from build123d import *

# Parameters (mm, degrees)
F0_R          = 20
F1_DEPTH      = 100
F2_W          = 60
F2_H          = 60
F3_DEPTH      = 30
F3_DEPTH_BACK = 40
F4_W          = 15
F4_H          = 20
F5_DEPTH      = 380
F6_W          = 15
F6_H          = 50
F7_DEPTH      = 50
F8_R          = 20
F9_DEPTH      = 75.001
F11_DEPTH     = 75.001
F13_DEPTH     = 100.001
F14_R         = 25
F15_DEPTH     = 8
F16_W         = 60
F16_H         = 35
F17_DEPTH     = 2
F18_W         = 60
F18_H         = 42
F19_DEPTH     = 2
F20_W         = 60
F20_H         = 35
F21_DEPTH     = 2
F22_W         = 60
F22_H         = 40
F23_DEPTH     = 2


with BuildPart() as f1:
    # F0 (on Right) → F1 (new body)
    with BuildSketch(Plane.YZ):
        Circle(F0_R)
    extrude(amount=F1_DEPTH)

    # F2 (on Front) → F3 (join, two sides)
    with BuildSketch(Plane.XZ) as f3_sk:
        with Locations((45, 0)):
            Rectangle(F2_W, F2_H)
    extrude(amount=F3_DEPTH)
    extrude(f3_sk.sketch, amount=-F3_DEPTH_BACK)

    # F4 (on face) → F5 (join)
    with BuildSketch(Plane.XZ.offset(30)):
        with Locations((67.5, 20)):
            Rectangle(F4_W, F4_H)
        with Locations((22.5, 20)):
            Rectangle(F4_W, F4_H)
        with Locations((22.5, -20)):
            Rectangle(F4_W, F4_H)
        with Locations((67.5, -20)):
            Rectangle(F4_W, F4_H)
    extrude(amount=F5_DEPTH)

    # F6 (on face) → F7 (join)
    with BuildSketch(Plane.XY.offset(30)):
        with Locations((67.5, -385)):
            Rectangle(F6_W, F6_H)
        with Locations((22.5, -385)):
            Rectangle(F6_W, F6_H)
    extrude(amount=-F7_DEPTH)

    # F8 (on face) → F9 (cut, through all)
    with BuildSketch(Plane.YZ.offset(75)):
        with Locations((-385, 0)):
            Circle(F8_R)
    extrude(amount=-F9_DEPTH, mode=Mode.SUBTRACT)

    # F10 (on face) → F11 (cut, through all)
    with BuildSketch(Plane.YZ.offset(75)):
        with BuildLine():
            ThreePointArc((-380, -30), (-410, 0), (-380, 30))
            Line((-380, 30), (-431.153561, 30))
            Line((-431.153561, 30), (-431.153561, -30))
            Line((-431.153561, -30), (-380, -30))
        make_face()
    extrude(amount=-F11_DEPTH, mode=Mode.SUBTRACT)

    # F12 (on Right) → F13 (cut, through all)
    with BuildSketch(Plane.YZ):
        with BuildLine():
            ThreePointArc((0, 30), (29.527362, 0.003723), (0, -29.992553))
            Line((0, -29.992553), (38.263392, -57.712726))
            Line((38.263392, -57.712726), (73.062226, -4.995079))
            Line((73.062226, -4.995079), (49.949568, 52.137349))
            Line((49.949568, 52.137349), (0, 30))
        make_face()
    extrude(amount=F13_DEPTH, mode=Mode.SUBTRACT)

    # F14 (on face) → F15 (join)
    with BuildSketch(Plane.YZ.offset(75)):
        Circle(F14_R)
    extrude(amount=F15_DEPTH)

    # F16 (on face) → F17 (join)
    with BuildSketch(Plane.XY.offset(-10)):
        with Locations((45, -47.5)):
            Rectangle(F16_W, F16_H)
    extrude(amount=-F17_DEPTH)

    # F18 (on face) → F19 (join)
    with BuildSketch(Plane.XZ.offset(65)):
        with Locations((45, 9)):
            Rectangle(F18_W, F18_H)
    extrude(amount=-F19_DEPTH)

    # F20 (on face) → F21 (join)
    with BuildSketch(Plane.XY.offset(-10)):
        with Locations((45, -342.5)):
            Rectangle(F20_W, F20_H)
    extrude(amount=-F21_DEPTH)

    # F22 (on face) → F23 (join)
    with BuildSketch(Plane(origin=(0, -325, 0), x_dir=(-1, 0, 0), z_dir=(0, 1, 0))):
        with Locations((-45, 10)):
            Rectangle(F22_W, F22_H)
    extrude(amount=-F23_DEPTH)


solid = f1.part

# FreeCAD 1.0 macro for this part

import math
import FreeCAD as App
import Part
import Sketcher
Q = App.Units.Quantity

doc = App.newDocument("Part")
body = doc.addObject("PartDesign::Body", "Body")

sketch1 = doc.addObject("Sketcher::SketchObject", "Sketch")
body.addObject(sketch1)
sketch1.AttachmentSupport = (doc.YZ_Plane, [""])
sketch1.MapMode = "FlatFace"
sketch1.addGeometry(Part.Circle(App.Vector(0, 0, 0), App.Vector(0, 0, 1), 20), False)
sketch1.addConstraint([
    Sketcher.Constraint("Coincident", 0, 3, -1, 1),
    Sketcher.Constraint("Diameter", 0, Q("40 mm")),
])
pad1 = doc.addObject("PartDesign::Pad", "Pad")
body.addObject(pad1)
pad1.Profile = sketch1
pad1.Length = 100

sketch2 = doc.addObject("Sketcher::SketchObject", "Sketch001")
body.addObject(sketch2)
sketch2.AttachmentSupport = (doc.XZ_Plane, [""])
sketch2.MapMode = "FlatFace"
sketch2.addGeometry([
    Part.LineSegment(App.Vector(15, 30, 0), App.Vector(15, -30, 0)),
    Part.LineSegment(App.Vector(15, -30, 0), App.Vector(75, -30, 0)),
    Part.LineSegment(App.Vector(75, -30, 0), App.Vector(75, 30, 0)),
    Part.LineSegment(App.Vector(75, 30, 0), App.Vector(15, 30, 0)),
], False)
sketch2.addConstraint([
    Sketcher.Constraint("Coincident", 0, 2, 1, 1),
    Sketcher.Constraint("Coincident", 1, 2, 2, 1),
    Sketcher.Constraint("Coincident", 2, 2, 3, 1),
    Sketcher.Constraint("Coincident", 3, 2, 0, 1),
    Sketcher.Constraint("Vertical", 0),
    Sketcher.Constraint("Horizontal", 1),
    Sketcher.Constraint("Vertical", 2),
    Sketcher.Constraint("Horizontal", 3),
    Sketcher.Constraint("Equal", 3, 0),
    Sketcher.Constraint("DistanceX", 1, 1, 1, 2, Q("60 mm")),
    Sketcher.Constraint("DistanceX", -1, 1, 0, 2, Q("15 mm")),
    Sketcher.Constraint("DistanceY", 0, 2, -1, 1, Q("30 mm")),
])
pad2 = doc.addObject("PartDesign::Pad", "Pad001")
body.addObject(pad2)
pad2.Profile = sketch2
pad2.Type = "TwoLengths"
pad2.Length = 30
pad2.Length2 = 40

sketch3 = doc.addObject("Sketcher::SketchObject", "Sketch002")
body.addObject(sketch3)
sketch3.AttachmentSupport = (doc.XZ_Plane, [""])
sketch3.MapMode = "FlatFace"
sketch3.AttachmentOffset = App.Placement(App.Vector(0, 0, 30), App.Rotation())
sketch3.addGeometry([
    Part.LineSegment(App.Vector(60, 30, 0), App.Vector(60, 10, 0)),
    Part.LineSegment(App.Vector(60, 10, 0), App.Vector(75, 10, 0)),
    Part.LineSegment(App.Vector(75, 10, 0), App.Vector(75, 30, 0)),
    Part.LineSegment(App.Vector(75, 30, 0), App.Vector(60, 30, 0)),
    Part.LineSegment(App.Vector(15, 30, 0), App.Vector(15, 10, 0)),
    Part.LineSegment(App.Vector(15, 10, 0), App.Vector(30, 10, 0)),
    Part.LineSegment(App.Vector(30, 10, 0), App.Vector(30, 30, 0)),
    Part.LineSegment(App.Vector(30, 30, 0), App.Vector(15, 30, 0)),
    Part.LineSegment(App.Vector(15, -10, 0), App.Vector(15, -30, 0)),
    Part.LineSegment(App.Vector(15, -30, 0), App.Vector(30, -30, 0)),
    Part.LineSegment(App.Vector(30, -30, 0), App.Vector(30, -10, 0)),
    Part.LineSegment(App.Vector(30, -10, 0), App.Vector(15, -10, 0)),
    Part.LineSegment(App.Vector(60, -10, 0), App.Vector(60, -30, 0)),
    Part.LineSegment(App.Vector(60, -30, 0), App.Vector(75, -30, 0)),
    Part.LineSegment(App.Vector(75, -30, 0), App.Vector(75, -10, 0)),
    Part.LineSegment(App.Vector(75, -10, 0), App.Vector(60, -10, 0)),
], False)
sketch3.addConstraint([
    Sketcher.Constraint("Coincident", 0, 2, 1, 1),
    Sketcher.Constraint("Coincident", 1, 2, 2, 1),
    Sketcher.Constraint("Coincident", 2, 2, 3, 1),
    Sketcher.Constraint("Coincident", 3, 2, 0, 1),
    Sketcher.Constraint("Coincident", 4, 2, 5, 1),
    Sketcher.Constraint("Coincident", 5, 2, 6, 1),
    Sketcher.Constraint("Coincident", 6, 2, 7, 1),
    Sketcher.Constraint("Coincident", 7, 2, 4, 1),
    Sketcher.Constraint("Coincident", 8, 2, 9, 1),
    Sketcher.Constraint("Coincident", 9, 2, 10, 1),
    Sketcher.Constraint("Coincident", 10, 2, 11, 1),
    Sketcher.Constraint("Coincident", 11, 2, 8, 1),
    Sketcher.Constraint("Coincident", 12, 2, 13, 1),
    Sketcher.Constraint("Coincident", 13, 2, 14, 1),
    Sketcher.Constraint("Coincident", 14, 2, 15, 1),
    Sketcher.Constraint("Coincident", 15, 2, 12, 1),
    Sketcher.Constraint("Vertical", 0),
    Sketcher.Constraint("Horizontal", 1),
    Sketcher.Constraint("Vertical", 2),
    Sketcher.Constraint("Horizontal", 3),
    Sketcher.Constraint("Vertical", 4),
    Sketcher.Constraint("Horizontal", 5),
    Sketcher.Constraint("Vertical", 6),
    Sketcher.Constraint("Horizontal", 7),
    Sketcher.Constraint("Vertical", 8),
    Sketcher.Constraint("Horizontal", 9),
    Sketcher.Constraint("Vertical", 10),
    Sketcher.Constraint("Horizontal", 11),
    Sketcher.Constraint("Vertical", 12),
    Sketcher.Constraint("Horizontal", 13),
    Sketcher.Constraint("Vertical", 14),
    Sketcher.Constraint("Horizontal", 15),
    Sketcher.Constraint("Symmetric", 7, 2, 8, 2, -1),
    Sketcher.Constraint("Symmetric", 5, 2, 10, 2, -1),
    Sketcher.Constraint("Symmetric", 3, 2, 12, 2, -1),
    Sketcher.Constraint("Symmetric", 1, 2, 14, 2, -1),
    Sketcher.Constraint("Horizontal", 1, 2, 4, 2),
    Sketcher.Constraint("Horizontal", 3, 2, 6, 2),
    Sketcher.Constraint("Equal", 3, 5),
    Sketcher.Constraint("DistanceX", 1, 1, 1, 2, Q("15 mm")),
    Sketcher.Constraint("DistanceY", 0, 2, 0, 1, Q("20 mm")),
    Sketcher.Constraint("DistanceX", -1, 1, 0, 2, Q("60 mm")),
    Sketcher.Constraint("DistanceY", -1, 1, 0, 2, Q("10 mm")),
    Sketcher.Constraint("DistanceX", -1, 1, 4, 2, Q("15 mm")),
])
pad3 = doc.addObject("PartDesign::Pad", "Pad002")
body.addObject(pad3)
pad3.Profile = sketch3
pad3.Length = 380

sketch4 = doc.addObject("Sketcher::SketchObject", "Sketch003")
body.addObject(sketch4)
sketch4.AttachmentSupport = (doc.XY_Plane, [""])
sketch4.MapMode = "FlatFace"
sketch4.AttachmentOffset = App.Placement(App.Vector(0, 0, 30), App.Rotation())
sketch4.addGeometry([
    Part.LineSegment(App.Vector(60, -360, 0), App.Vector(60, -410, 0)),
    Part.LineSegment(App.Vector(60, -410, 0), App.Vector(75, -410, 0)),
    Part.LineSegment(App.Vector(75, -410, 0), App.Vector(75, -360, 0)),
    Part.LineSegment(App.Vector(75, -360, 0), App.Vector(60, -360, 0)),
    Part.LineSegment(App.Vector(15, -360, 0), App.Vector(15, -410, 0)),
    Part.LineSegment(App.Vector(15, -410, 0), App.Vector(30, -410, 0)),
    Part.LineSegment(App.Vector(30, -410, 0), App.Vector(30, -360, 0)),
    Part.LineSegment(App.Vector(30, -360, 0), App.Vector(15, -360, 0)),
], False)
sketch4.addConstraint([
    Sketcher.Constraint("Coincident", 0, 2, 1, 1),
    Sketcher.Constraint("Coincident", 1, 2, 2, 1),
    Sketcher.Constraint("Coincident", 2, 2, 3, 1),
    Sketcher.Constraint("Coincident", 3, 2, 0, 1),
    Sketcher.Constraint("Coincident", 4, 2, 5, 1),
    Sketcher.Constraint("Coincident", 5, 2, 6, 1),
    Sketcher.Constraint("Coincident", 6, 2, 7, 1),
    Sketcher.Constraint("Coincident", 7, 2, 4, 1),
    Sketcher.Constraint("Vertical", 0),
    Sketcher.Constraint("Horizontal", 1),
    Sketcher.Constraint("Vertical", 2),
    Sketcher.Constraint("Horizontal", 3),
    Sketcher.Constraint("Vertical", 4),
    Sketcher.Constraint("Horizontal", 5),
    Sketcher.Constraint("Vertical", 6),
    Sketcher.Constraint("Horizontal", 7),
    Sketcher.Constraint("Horizontal", 1, 2, 4, 2),
    Sketcher.Constraint("Horizontal", 3, 2, 6, 2),
    Sketcher.Constraint("Equal", 3, 5),
    Sketcher.Constraint("DistanceX", 1, 1, 1, 2, Q("15 mm")),
    Sketcher.Constraint("DistanceY", 0, 2, 0, 1, Q("50 mm")),
    Sketcher.Constraint("DistanceX", -1, 1, 0, 2, Q("60 mm")),
    Sketcher.Constraint("DistanceY", 0, 2, -1, 1, Q("410 mm")),
    Sketcher.Constraint("DistanceX", -1, 1, 4, 2, Q("15 mm")),
])
pad4 = doc.addObject("PartDesign::Pad", "Pad003")
body.addObject(pad4)
pad4.Profile = sketch4
pad4.Length = 50
pad4.Reversed = True

sketch5 = doc.addObject("Sketcher::SketchObject", "Sketch004")
body.addObject(sketch5)
sketch5.AttachmentSupport = (doc.YZ_Plane, [""])
sketch5.MapMode = "FlatFace"
sketch5.AttachmentOffset = App.Placement(App.Vector(0, 0, 75), App.Rotation())
sketch5.addGeometry(Part.Circle(App.Vector(-385, 0, 0), App.Vector(0, 0, 1), 20), False)
sketch5.addConstraint([
    Sketcher.Constraint("PointOnObject", 0, 3, -1),
    Sketcher.Constraint("Diameter", 0, Q("40 mm")),
    Sketcher.Constraint("DistanceX", 0, 3, -1, 1, Q("385 mm")),
])
pocket1 = doc.addObject("PartDesign::Pocket", "Pocket")
body.addObject(pocket1)
pocket1.Profile = sketch5
pocket1.Type = "ThroughAll"

sketch6 = doc.addObject("Sketcher::SketchObject", "Sketch005")
body.addObject(sketch6)
sketch6.AttachmentSupport = (doc.YZ_Plane, [""])
sketch6.MapMode = "FlatFace"
sketch6.AttachmentOffset = App.Placement(App.Vector(0, 0, 75), App.Rotation())
sketch6.addGeometry([
    Part.ArcOfCircle(Part.Circle(App.Vector(-380, 0, 0), App.Vector(0, 0, 1), 30), math.radians(90), math.radians(270)),
    Part.LineSegment(App.Vector(-380, 30, 0), App.Vector(-431.153561, 30, 0)),
    Part.LineSegment(App.Vector(-431.153561, 30, 0), App.Vector(-431.153561, -30, 0)),
    Part.LineSegment(App.Vector(-431.153561, -30, 0), App.Vector(-380, -30, 0)),
], False)
sketch6.addConstraint([
    Sketcher.Constraint("Tangent", 0, 1, 1, 1),
    Sketcher.Constraint("Coincident", 1, 2, 2, 1),
    Sketcher.Constraint("Coincident", 2, 2, 3, 1),
    Sketcher.Constraint("Tangent", 3, 2, 0, 2),
    Sketcher.Constraint("Horizontal", 1),
    Sketcher.Constraint("Vertical", 2),
    Sketcher.Constraint("Horizontal", 3),
    Sketcher.Constraint("PointOnObject", 0, 3, -1),
    Sketcher.Constraint("Radius", 0, Q("30 mm")),
    Sketcher.Constraint("DistanceX", 0, 3, -1, 1, Q("380 mm")),
    Sketcher.Constraint("DistanceX", 1, 2, 1, 1, Q("51.153561 mm")),
])
pocket2 = doc.addObject("PartDesign::Pocket", "Pocket001")
body.addObject(pocket2)
pocket2.Profile = sketch6
pocket2.Type = "ThroughAll"

sketch7 = doc.addObject("Sketcher::SketchObject", "Sketch006")
body.addObject(sketch7)
sketch7.AttachmentSupport = (doc.YZ_Plane, [""])
sketch7.MapMode = "FlatFace"
sketch7.addGeometry([
    Part.ArcOfCircle(Part.Circle(App.Vector(-0.472638, 0.003723, 0), App.Vector(0, 0, 1), 30), math.radians(-89.097291), math.radians(89.097291)),
    Part.LineSegment(App.Vector(0, -29.992553, 0), App.Vector(38.263392, -57.712726, 0)),
    Part.LineSegment(App.Vector(38.263392, -57.712726, 0), App.Vector(73.062226, -4.995079, 0)),
    Part.LineSegment(App.Vector(73.062226, -4.995079, 0), App.Vector(49.949568, 52.137349, 0)),
    Part.LineSegment(App.Vector(49.949568, 52.137349, 0), App.Vector(0, 30, 0)),
], False)
sketch7.addConstraint([
    Sketcher.Constraint("Coincident", 0, 1, 1, 1),
    Sketcher.Constraint("Coincident", 1, 2, 2, 1),
    Sketcher.Constraint("Coincident", 2, 2, 3, 1),
    Sketcher.Constraint("Coincident", 3, 2, 4, 1),
    Sketcher.Constraint("Coincident", 4, 2, 0, 2),
    Sketcher.Constraint("PointOnObject", 0, 1, -2),
    Sketcher.Constraint("PointOnObject", 4, 2, -2),
    Sketcher.Constraint("Radius", 0, Q("30 mm")),
    Sketcher.Constraint("DistanceY", -1, 1, 4, 2, Q("30 mm")),
    Sketcher.Constraint("Distance", 2, Q("63.167311 mm")),
    Sketcher.Constraint("Distance", 4, Q("54.635351 mm")),
    Sketcher.Constraint("DistanceY", 2, 2, -1, 1, Q("4.995079 mm")),
    Sketcher.Constraint("DistanceY", -1, 1, 3, 2, Q("52.137349 mm")),
    Sketcher.Constraint("DistanceX", 0, 1, 1, 2, Q("38.263392 mm")),
    Sketcher.Constraint("DistanceX", 0, 3, 1, 2, Q("38.73603 mm")),
    Sketcher.Constraint("DistanceY", 1, 2, 0, 3, Q("57.71645 mm")),
])
pocket3 = doc.addObject("PartDesign::Pocket", "Pocket002")
body.addObject(pocket3)
pocket3.Profile = sketch7
pocket3.Type = "ThroughAll"
pocket3.Reversed = True

sketch8 = doc.addObject("Sketcher::SketchObject", "Sketch007")
body.addObject(sketch8)
sketch8.AttachmentSupport = (doc.YZ_Plane, [""])
sketch8.MapMode = "FlatFace"
sketch8.AttachmentOffset = App.Placement(App.Vector(0, 0, 75), App.Rotation())
sketch8.addGeometry(Part.Circle(App.Vector(0, 0, 0), App.Vector(0, 0, 1), 25), False)
sketch8.addConstraint([
    Sketcher.Constraint("Coincident", 0, 3, -1, 1),
    Sketcher.Constraint("Diameter", 0, Q("50 mm")),
])
pad5 = doc.addObject("PartDesign::Pad", "Pad004")
body.addObject(pad5)
pad5.Profile = sketch8
pad5.Length = 8

sketch9 = doc.addObject("Sketcher::SketchObject", "Sketch008")
body.addObject(sketch9)
sketch9.AttachmentSupport = (doc.XY_Plane, [""])
sketch9.MapMode = "FlatFace"
sketch9.AttachmentOffset = App.Placement(App.Vector(0, 0, -10), App.Rotation())
sketch9.addGeometry([
    Part.LineSegment(App.Vector(15, -30, 0), App.Vector(15, -65, 0)),
    Part.LineSegment(App.Vector(15, -65, 0), App.Vector(75, -65, 0)),
    Part.LineSegment(App.Vector(75, -65, 0), App.Vector(75, -30, 0)),
    Part.LineSegment(App.Vector(75, -30, 0), App.Vector(15, -30, 0)),
], False)
sketch9.addConstraint([
    Sketcher.Constraint("Coincident", 0, 2, 1, 1),
    Sketcher.Constraint("Coincident", 1, 2, 2, 1),
    Sketcher.Constraint("Coincident", 2, 2, 3, 1),
    Sketcher.Constraint("Coincident", 3, 2, 0, 1),
    Sketcher.Constraint("Vertical", 0),
    Sketcher.Constraint("Horizontal", 1),
    Sketcher.Constraint("Vertical", 2),
    Sketcher.Constraint("Horizontal", 3),
    Sketcher.Constraint("DistanceX", 1, 1, 1, 2, Q("60 mm")),
    Sketcher.Constraint("DistanceY", 0, 2, 0, 1, Q("35 mm")),
    Sketcher.Constraint("DistanceX", -1, 1, 0, 2, Q("15 mm")),
    Sketcher.Constraint("DistanceY", 0, 2, -1, 1, Q("65 mm")),
])
pad6 = doc.addObject("PartDesign::Pad", "Pad005")
body.addObject(pad6)
pad6.Profile = sketch9
pad6.Length = 2
pad6.Reversed = True

sketch10 = doc.addObject("Sketcher::SketchObject", "Sketch009")
body.addObject(sketch10)
sketch10.AttachmentSupport = (doc.XZ_Plane, [""])
sketch10.MapMode = "FlatFace"
sketch10.AttachmentOffset = App.Placement(App.Vector(0, 0, 65), App.Rotation())
sketch10.addGeometry([
    Part.LineSegment(App.Vector(15, 30, 0), App.Vector(15, -12, 0)),
    Part.LineSegment(App.Vector(15, -12, 0), App.Vector(75, -12, 0)),
    Part.LineSegment(App.Vector(75, -12, 0), App.Vector(75, 30, 0)),
    Part.LineSegment(App.Vector(75, 30, 0), App.Vector(15, 30, 0)),
], False)
sketch10.addConstraint([
    Sketcher.Constraint("Coincident", 0, 2, 1, 1),
    Sketcher.Constraint("Coincident", 1, 2, 2, 1),
    Sketcher.Constraint("Coincident", 2, 2, 3, 1),
    Sketcher.Constraint("Coincident", 3, 2, 0, 1),
    Sketcher.Constraint("Vertical", 0),
    Sketcher.Constraint("Horizontal", 1),
    Sketcher.Constraint("Vertical", 2),
    Sketcher.Constraint("Horizontal", 3),
    Sketcher.Constraint("DistanceX", 1, 1, 1, 2, Q("60 mm")),
    Sketcher.Constraint("DistanceY", 0, 2, 0, 1, Q("42 mm")),
    Sketcher.Constraint("DistanceX", -1, 1, 0, 2, Q("15 mm")),
    Sketcher.Constraint("DistanceY", 0, 2, -1, 1, Q("12 mm")),
])
pad7 = doc.addObject("PartDesign::Pad", "Pad006")
body.addObject(pad7)
pad7.Profile = sketch10
pad7.Length = 2
pad7.Reversed = True

sketch11 = doc.addObject("Sketcher::SketchObject", "Sketch010")
body.addObject(sketch11)
sketch11.AttachmentSupport = (doc.XY_Plane, [""])
sketch11.MapMode = "FlatFace"
sketch11.AttachmentOffset = App.Placement(App.Vector(0, 0, -10), App.Rotation())
sketch11.addGeometry([
    Part.LineSegment(App.Vector(15, -325, 0), App.Vector(15, -360, 0)),
    Part.LineSegment(App.Vector(15, -360, 0), App.Vector(75, -360, 0)),
    Part.LineSegment(App.Vector(75, -360, 0), App.Vector(75, -325, 0)),
    Part.LineSegment(App.Vector(75, -325, 0), App.Vector(15, -325, 0)),
], False)
sketch11.addConstraint([
    Sketcher.Constraint("Coincident", 0, 2, 1, 1),
    Sketcher.Constraint("Coincident", 1, 2, 2, 1),
    Sketcher.Constraint("Coincident", 2, 2, 3, 1),
    Sketcher.Constraint("Coincident", 3, 2, 0, 1),
    Sketcher.Constraint("Vertical", 0),
    Sketcher.Constraint("Horizontal", 1),
    Sketcher.Constraint("Vertical", 2),
    Sketcher.Constraint("Horizontal", 3),
    Sketcher.Constraint("DistanceX", 1, 1, 1, 2, Q("60 mm")),
    Sketcher.Constraint("DistanceY", 0, 2, 0, 1, Q("35 mm")),
    Sketcher.Constraint("DistanceX", -1, 1, 0, 2, Q("15 mm")),
    Sketcher.Constraint("DistanceY", 0, 2, -1, 1, Q("360 mm")),
])
pad8 = doc.addObject("PartDesign::Pad", "Pad007")
body.addObject(pad8)
pad8.Profile = sketch11
pad8.Length = 2
pad8.Reversed = True

sketch12 = doc.addObject("Sketcher::SketchObject", "Sketch011")
body.addObject(sketch12)
sketch12.AttachmentSupport = (doc.XZ_Plane, [""])
sketch12.MapMode = "FlatFace"
sketch12.AttachmentOffset = App.Placement(App.Vector(0, 0, 325), App.Rotation())
sketch12.addGeometry([
    Part.LineSegment(App.Vector(75, 30, 0), App.Vector(75, -10, 0)),
    Part.LineSegment(App.Vector(75, -10, 0), App.Vector(15, -10, 0)),
    Part.LineSegment(App.Vector(15, -10, 0), App.Vector(15, 30, 0)),
    Part.LineSegment(App.Vector(15, 30, 0), App.Vector(75, 30, 0)),
], False)
sketch12.addConstraint([
    Sketcher.Constraint("Coincident", 0, 2, 1, 1),
    Sketcher.Constraint("Coincident", 1, 2, 2, 1),
    Sketcher.Constraint("Coincident", 2, 2, 3, 1),
    Sketcher.Constraint("Coincident", 3, 2, 0, 1),
    Sketcher.Constraint("Vertical", 0),
    Sketcher.Constraint("Horizontal", 1),
    Sketcher.Constraint("Vertical", 2),
    Sketcher.Constraint("Horizontal", 3),
    Sketcher.Constraint("DistanceX", 1, 2, 1, 1, Q("60 mm")),
    Sketcher.Constraint("DistanceY", 0, 2, 0, 1, Q("40 mm")),
    Sketcher.Constraint("DistanceX", -1, 1, 0, 2, Q("75 mm")),
    Sketcher.Constraint("DistanceY", 0, 2, -1, 1, Q("10 mm")),
])
pad9 = doc.addObject("PartDesign::Pad", "Pad008")
body.addObject(pad9)
pad9.Profile = sketch12
pad9.Length = 2

doc.recompute()
